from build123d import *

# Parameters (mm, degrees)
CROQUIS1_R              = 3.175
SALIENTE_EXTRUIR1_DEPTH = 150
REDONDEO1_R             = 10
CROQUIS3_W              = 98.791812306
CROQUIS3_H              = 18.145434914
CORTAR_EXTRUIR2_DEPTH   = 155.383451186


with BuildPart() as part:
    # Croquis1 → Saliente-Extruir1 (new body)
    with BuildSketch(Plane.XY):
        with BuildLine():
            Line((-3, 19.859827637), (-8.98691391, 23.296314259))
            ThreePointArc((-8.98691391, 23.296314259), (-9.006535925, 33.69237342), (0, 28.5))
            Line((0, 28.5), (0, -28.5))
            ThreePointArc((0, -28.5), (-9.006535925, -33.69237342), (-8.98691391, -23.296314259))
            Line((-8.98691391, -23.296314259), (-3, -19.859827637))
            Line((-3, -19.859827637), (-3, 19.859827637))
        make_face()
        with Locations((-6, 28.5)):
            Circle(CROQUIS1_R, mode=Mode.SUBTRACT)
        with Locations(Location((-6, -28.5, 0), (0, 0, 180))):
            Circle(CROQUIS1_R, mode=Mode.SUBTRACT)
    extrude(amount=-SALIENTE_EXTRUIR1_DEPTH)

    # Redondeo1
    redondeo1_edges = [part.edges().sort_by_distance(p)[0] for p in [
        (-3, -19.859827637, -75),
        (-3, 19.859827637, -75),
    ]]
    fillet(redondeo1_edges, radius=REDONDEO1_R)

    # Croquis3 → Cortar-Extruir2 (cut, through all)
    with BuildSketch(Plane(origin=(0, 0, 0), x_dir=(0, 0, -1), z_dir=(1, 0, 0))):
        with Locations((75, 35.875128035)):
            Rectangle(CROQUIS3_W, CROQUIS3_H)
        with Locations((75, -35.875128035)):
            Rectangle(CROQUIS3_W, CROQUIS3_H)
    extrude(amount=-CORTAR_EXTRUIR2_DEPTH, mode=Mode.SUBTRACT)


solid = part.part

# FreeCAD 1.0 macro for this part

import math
import FreeCAD as App
import Part
import Sketcher
Q = App.Units.Quantity


def edges_at(feature, points):
    """Names of the edges that pass closest to the given points."""
    edges = feature.Shape.Edges
    near = lambda p: min(range(len(edges)), key=lambda i: edges[i].distToShape(Part.Vertex(*p))[0])
    return sorted({f"Edge{near(p) + 1}" for p in points})

doc = App.newDocument("Part")
body = doc.addObject("PartDesign::Body", "Body")

sketch1 = body.newObject("Sketcher::SketchObject", "Sketch")
sketch1.AttachmentSupport = (doc.getObject("XY_Plane"), [""])
sketch1.MapMode = "FlatFace"
sketch1.addGeometry(Part.LineSegment(App.Vector(-9, 23.3, 0), App.Vector(-3, 19.9, 0)), False)
sketch1.addGeometry(Part.LineSegment(App.Vector(-3, 19.9, 0), App.Vector(-3, -19.9, 0)), False)
sketch1.addGeometry(Part.LineSegment(App.Vector(-3, -19.9, 0), App.Vector(-9, -23.3, 0)), False)
sketch1.addGeometry(Part.ArcOfCircle(Part.Circle(App.Vector(-6, -28.5, 0), App.Vector(0, 0, 1), 6), math.radians(120), math.radians(360)), False)
sketch1.addGeometry(Part.LineSegment(App.Vector(0, -28.5, 0), App.Vector(0, 28.5, 0)), False)
sketch1.addGeometry(Part.ArcOfCircle(Part.Circle(App.Vector(-6, 28.5, 0), App.Vector(0, 0, 1), 6), math.radians(0), math.radians(240)), False)
sketch1.addGeometry(Part.Circle(App.Vector(-6, -28.5, 0), App.Vector(0, 0, 1), 3.2), False)
sketch1.addGeometry(Part.Circle(App.Vector(-6, 28.5, 0), App.Vector(0, 0, 1), 3.2), False)
sketch1.addConstraint(Sketcher.Constraint("Coincident", 0, 2, 1, 1))
sketch1.addConstraint(Sketcher.Constraint("Coincident", 1, 2, 2, 1))
sketch1.addConstraint(Sketcher.Constraint("Tangent", 2, 2, 3, 1))
sketch1.addConstraint(Sketcher.Constraint("Tangent", 3, 2, 4, 1))
sketch1.addConstraint(Sketcher.Constraint("Tangent", 4, 2, 5, 1))
sketch1.addConstraint(Sketcher.Constraint("Tangent", 5, 2, 0, 1))
sketch1.addConstraint(Sketcher.Constraint("Vertical", 1))
sketch1.addConstraint(Sketcher.Constraint("Vertical", 4))
sketch1.addConstraint(Sketcher.Constraint("Coincident", 6, 3, 3, 3))
sketch1.addConstraint(Sketcher.Constraint("Coincident", 7, 3, 5, 3))
sketch1.addConstraint(Sketcher.Constraint("Equal", 3, 5))
sketch1.addConstraint(Sketcher.Constraint("Equal", 6, 7))
sketch1.addConstraint(Sketcher.Constraint("Symmetric", 3, 2, 4, 2, -1, 1))
sketch1.addConstraint(Sketcher.Constraint("Vertical", 2, 2, 5, 2))
sketch1.addConstraint(Sketcher.Constraint("Radius", 3, Q("6 mm")))
sketch1.addConstraint(Sketcher.Constraint("Diameter", 6, Q("6.35 mm")))
sketch1.addConstraint(Sketcher.Constraint("DistanceY", 4, 1, 4, 2, Q("57 mm")))
sketch1.addConstraint(Sketcher.Constraint("DistanceX", 0, 2, -1, 1, Q("3 mm")))
sketch1.addConstraint(Sketcher.Constraint("DistanceY", 1, 2, 1, 1, Q("39.719655 mm")))
pad1 = body.newObject("PartDesign::Pad", "Pad")
pad1.Profile = sketch1
pad1.Length = 150
pad1.Reversed = True
doc.recompute()

fillet = body.newObject("PartDesign::Fillet", "Fillet")
fillet.Base = (pad1, edges_at(pad1, [(-3, -19.86, -75), (-3, 19.86, -75)]))
fillet.Radius = 10

sketch2 = body.newObject("Sketcher::SketchObject", "Sketch001")
sketch2.AttachmentSupport = (doc.getObject("YZ_Plane"), [""])
sketch2.MapMode = "FlatFace"
sketch2.addGeometry(Part.LineSegment(App.Vector(45, -26, 0), App.Vector(27, -26, 0)), False)
sketch2.addGeometry(Part.LineSegment(App.Vector(27, -26, 0), App.Vector(27, -124, 0)), False)
sketch2.addGeometry(Part.LineSegment(App.Vector(27, -124, 0), App.Vector(45, -124, 0)), False)
sketch2.addGeometry(Part.LineSegment(App.Vector(45, -124, 0), App.Vector(45, -26, 0)), False)
sketch2.addGeometry(Part.LineSegment(App.Vector(-27, -26, 0), App.Vector(-45, -26, 0)), False)
sketch2.addGeometry(Part.LineSegment(App.Vector(-45, -26, 0), App.Vector(-45, -124, 0)), False)
sketch2.addGeometry(Part.LineSegment(App.Vector(-45, -124, 0), App.Vector(-27, -124, 0)), False)
sketch2.addGeometry(Part.LineSegment(App.Vector(-27, -124, 0), App.Vector(-27, -26, 0)), False)
sketch2.addConstraint(Sketcher.Constraint("Coincident", 0, 2, 1, 1))
sketch2.addConstraint(Sketcher.Constraint("Coincident", 1, 2, 2, 1))
sketch2.addConstraint(Sketcher.Constraint("Coincident", 2, 2, 3, 1))
sketch2.addConstraint(Sketcher.Constraint("Coincident", 3, 2, 0, 1))
sketch2.addConstraint(Sketcher.Constraint("Coincident", 4, 2, 5, 1))
sketch2.addConstraint(Sketcher.Constraint("Coincident", 5, 2, 6, 1))
sketch2.addConstraint(Sketcher.Constraint("Coincident", 6, 2, 7, 1))
sketch2.addConstraint(Sketcher.Constraint("Coincident", 7, 2, 4, 1))
sketch2.addConstraint(Sketcher.Constraint("Horizontal", 0))
sketch2.addConstraint(Sketcher.Constraint("Vertical", 1))
sketch2.addConstraint(Sketcher.Constraint("Horizontal", 2))
sketch2.addConstraint(Sketcher.Constraint("Vertical", 3))
sketch2.addConstraint(Sketcher.Constraint("Horizontal", 4))
sketch2.addConstraint(Sketcher.Constraint("Vertical", 5))
sketch2.addConstraint(Sketcher.Constraint("Horizontal", 6))
sketch2.addConstraint(Sketcher.Constraint("Vertical", 7))
sketch2.addConstraint(Sketcher.Constraint("Symmetric", 3, 2, 4, 2, -2))
sketch2.addConstraint(Sketcher.Constraint("Symmetric", 1, 2, 6, 2, -2))
sketch2.addConstraint(Sketcher.Constraint("DistanceX", 0, 2, 0, 1, Q("18.145435 mm")))
sketch2.addConstraint(Sketcher.Constraint("DistanceY", 1, 2, 1, 1, Q("98.791812 mm")))
sketch2.addConstraint(Sketcher.Constraint("DistanceX", -1, 1, 0, 2, Q("26.802411 mm")))
sketch2.addConstraint(Sketcher.Constraint("DistanceY", 0, 2, -1, 1, Q("25.604094 mm")))
pocket1 = body.newObject("PartDesign::Pocket", "Pocket")
pocket1.Profile = sketch2
pocket1.Type = "ThroughAll"

doc.recompute()
